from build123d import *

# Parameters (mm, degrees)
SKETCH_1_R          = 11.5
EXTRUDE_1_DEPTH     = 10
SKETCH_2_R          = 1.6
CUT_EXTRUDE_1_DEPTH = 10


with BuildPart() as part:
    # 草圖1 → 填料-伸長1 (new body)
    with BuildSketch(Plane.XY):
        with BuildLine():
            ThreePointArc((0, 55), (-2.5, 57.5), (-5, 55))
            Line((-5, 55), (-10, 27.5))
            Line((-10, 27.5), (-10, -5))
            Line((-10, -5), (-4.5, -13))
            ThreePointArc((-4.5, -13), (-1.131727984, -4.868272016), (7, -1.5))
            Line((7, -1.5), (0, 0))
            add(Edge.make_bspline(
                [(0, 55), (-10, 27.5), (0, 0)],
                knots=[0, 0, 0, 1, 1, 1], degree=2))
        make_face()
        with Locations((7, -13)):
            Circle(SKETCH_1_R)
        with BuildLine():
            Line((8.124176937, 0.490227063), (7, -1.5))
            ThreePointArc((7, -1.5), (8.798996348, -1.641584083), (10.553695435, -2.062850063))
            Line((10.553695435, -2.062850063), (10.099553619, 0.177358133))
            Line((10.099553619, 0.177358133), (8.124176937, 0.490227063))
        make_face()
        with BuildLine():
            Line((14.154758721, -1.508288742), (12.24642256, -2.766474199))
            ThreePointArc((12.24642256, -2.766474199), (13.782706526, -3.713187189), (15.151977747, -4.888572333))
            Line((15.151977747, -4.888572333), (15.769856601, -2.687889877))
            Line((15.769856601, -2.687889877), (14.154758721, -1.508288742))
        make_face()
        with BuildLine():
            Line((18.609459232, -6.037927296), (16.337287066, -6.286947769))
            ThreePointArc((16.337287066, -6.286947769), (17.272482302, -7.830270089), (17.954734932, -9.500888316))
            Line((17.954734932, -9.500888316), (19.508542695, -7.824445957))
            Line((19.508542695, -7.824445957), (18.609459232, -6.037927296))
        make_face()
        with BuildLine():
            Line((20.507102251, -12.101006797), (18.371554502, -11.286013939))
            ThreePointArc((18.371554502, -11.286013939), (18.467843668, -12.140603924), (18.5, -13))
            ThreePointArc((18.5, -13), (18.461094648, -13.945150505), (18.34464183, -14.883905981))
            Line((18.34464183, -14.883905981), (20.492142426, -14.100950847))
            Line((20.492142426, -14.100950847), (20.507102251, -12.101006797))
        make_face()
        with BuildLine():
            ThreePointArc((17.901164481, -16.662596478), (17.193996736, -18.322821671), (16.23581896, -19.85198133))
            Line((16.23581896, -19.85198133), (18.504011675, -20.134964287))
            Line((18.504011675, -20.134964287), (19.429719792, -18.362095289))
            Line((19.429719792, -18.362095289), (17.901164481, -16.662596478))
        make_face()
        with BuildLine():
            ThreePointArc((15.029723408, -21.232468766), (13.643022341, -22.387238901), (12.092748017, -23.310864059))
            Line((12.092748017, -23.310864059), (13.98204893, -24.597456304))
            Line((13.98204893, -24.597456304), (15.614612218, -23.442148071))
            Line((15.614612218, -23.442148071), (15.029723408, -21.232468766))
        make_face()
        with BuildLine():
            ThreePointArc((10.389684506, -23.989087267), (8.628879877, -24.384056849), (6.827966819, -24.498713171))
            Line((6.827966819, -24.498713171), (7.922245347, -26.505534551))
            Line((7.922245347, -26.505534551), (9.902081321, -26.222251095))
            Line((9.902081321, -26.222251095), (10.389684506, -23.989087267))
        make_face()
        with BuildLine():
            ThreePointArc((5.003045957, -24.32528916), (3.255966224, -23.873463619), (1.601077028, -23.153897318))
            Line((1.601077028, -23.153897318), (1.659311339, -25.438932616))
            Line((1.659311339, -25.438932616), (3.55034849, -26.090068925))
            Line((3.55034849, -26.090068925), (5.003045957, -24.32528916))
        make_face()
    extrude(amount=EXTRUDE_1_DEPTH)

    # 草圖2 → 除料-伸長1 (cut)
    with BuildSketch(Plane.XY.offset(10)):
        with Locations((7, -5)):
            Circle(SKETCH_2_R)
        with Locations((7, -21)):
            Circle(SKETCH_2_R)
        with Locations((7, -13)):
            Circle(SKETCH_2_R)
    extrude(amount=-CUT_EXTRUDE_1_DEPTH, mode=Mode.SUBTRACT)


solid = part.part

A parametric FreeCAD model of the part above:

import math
import FreeCAD as App
import Part
import Sketcher
Q = App.Units.Quantity

doc = App.newDocument("Part")
body = doc.addObject("PartDesign::Body", "Body")

sketch1 = body.newObject("Sketcher::SketchObject", "Sketch")
sketch1.AttachmentSupport = (doc.getObject("XY_Plane"), [""])
sketch1.MapMode = "FlatFace"
sketch1.addGeometry(Part.ArcOfCircle(Part.Circle(App.Vector(-2.5, 55, 0), App.Vector(0, 0, 1), 2.5), math.radians(0), math.radians(180)), False)
sketch1.addGeometry(Part.LineSegment(App.Vector(-5, 55, 0), App.Vector(-10, 27.5, 0)), False)
sketch1.addGeometry(Part.LineSegment(App.Vector(-10, 27.5, 0), App.Vector(-10, -5, 0)), False)
sketch1.addGeometry(Part.LineSegment(App.Vector(-10, -5, 0), App.Vector(-4.5, -13, 0)), False)
sketch1.addGeometry(Part.ArcOfCircle(Part.Circle(App.Vector(7, -13, 0), App.Vector(0, 0, 1), 11.5), math.radians(180), math.radians(242)), False)
sketch1.addGeometry(Part.LineSegment(App.Vector(1.601077, -23.153897, 0), App.Vector(1.659311, -25.438933, 0)), False)
sketch1.addGeometry(Part.LineSegment(App.Vector(1.659311, -25.438933, 0), App.Vector(3.550348, -26.090069, 0)), False)
sketch1.addGeometry(Part.LineSegment(App.Vector(3.550348, -26.090069, 0), App.Vector(5.003046, -24.325289, 0)), False)
sketch1.addGeometry(Part.ArcOfCircle(Part.Circle(App.Vector(7, -13, 0), App.Vector(0, 0, 1), 11.5), math.radians(-100), math.radians(-90.857143)), False)
sketch1.addGeometry(Part.LineSegment(App.Vector(6.827967, -24.498713, 0), App.Vector(7.922245, -26.505535, 0)), False)
sketch1.addGeometry(Part.LineSegment(App.Vector(7.922245, -26.505535, 0), App.Vector(9.902081, -26.222251, 0)), False)
sketch1.addGeometry(Part.LineSegment(App.Vector(9.902081, -26.222251, 0), App.Vector(10.389685, -23.989087, 0)), False)
sketch1.addGeometry(Part.ArcOfCircle(Part.Circle(App.Vector(7, -13, 0), App.Vector(0, 0, 1), 11.5), math.radians(-72.857143), math.radians(-63.714286)), False)
sketch1.addGeometry(Part.LineSegment(App.Vector(12.092748, -23.310864, 0), App.Vector(13.982049, -24.597456, 0)), False)
sketch1.addGeometry(Part.LineSegment(App.Vector(13.982049, -24.597456, 0), App.Vector(15.614612, -23.442148, 0)), False)
sketch1.addGeometry(Part.LineSegment(App.Vector(15.614612, -23.442148, 0), App.Vector(15.029723, -21.232469, 0)), False)
sketch1.addGeometry(Part.ArcOfCircle(Part.Circle(App.Vector(7, -13, 0), App.Vector(0, 0, 1), 11.5), math.radians(-45.714286), math.radians(-36.571429)), False)
sketch1.addGeometry(Part.LineSegment(App.Vector(16.235819, -19.851981, 0), App.Vector(18.504012, -20.134964, 0)), False)
sketch1.addGeometry(Part.LineSegment(App.Vector(18.504012, -20.134964, 0), App.Vector(19.42972, -18.362095, 0)), False)
sketch1.addGeometry(Part.LineSegment(App.Vector(19.42972, -18.362095, 0), App.Vector(17.901164, -16.662596, 0)), False)
sketch1.addGeometry(Part.ArcOfCircle(Part.Circle(App.Vector(7, -13, 0), App.Vector(0, 0, 1), 11.5), math.radians(-18.571429), math.radians(-9.428571)), False)
sketch1.addGeometry(Part.LineSegment(App.Vector(18.344642, -14.883906, 0), App.Vector(20.492142, -14.100951, 0)), False)
sketch1.addGeometry(Part.LineSegment(App.Vector(20.492142, -14.100951, 0), App.Vector(20.507102, -12.101007, 0)), False)
sketch1.addGeometry(Part.LineSegment(App.Vector(20.507102, -12.101007, 0), App.Vector(18.371555, -11.286014, 0)), False)
sketch1.addGeometry(Part.ArcOfCircle(Part.Circle(App.Vector(7, -13, 0), App.Vector(0, 0, 1), 11.5), math.radians(8.571429), math.radians(17.714286)), False)
sketch1.addGeometry(Part.LineSegment(App.Vector(17.954735, -9.500888, 0), App.Vector(19.508543, -7.824446, 0)), False)
sketch1.addGeometry(Part.LineSegment(App.Vector(19.508543, -7.824446, 0), App.Vector(18.609459, -6.037927, 0)), False)
sketch1.addGeometry(Part.LineSegment(App.Vector(18.609459, -6.037927, 0), App.Vector(16.337287, -6.286948, 0)), False)
sketch1.addGeometry(Part.ArcOfCircle(Part.Circle(App.Vector(7, -13, 0), App.Vector(0, 0, 1), 11.5), math.radians(35.714286), math.radians(44.857143)), False)
sketch1.addGeometry(Part.LineSegment(App.Vector(15.151978, -4.888572, 0), App.Vector(15.769857, -2.68789, 0)), False)
sketch1.addGeometry(Part.LineSegment(App.Vector(15.769857, -2.68789, 0), App.Vector(14.154759, -1.508289, 0)), False)
sketch1.addGeometry(Part.LineSegment(App.Vector(14.154759, -1.508289, 0), App.Vector(12.246423, -2.766474, 0)), False)
sketch1.addGeometry(Part.ArcOfCircle(Part.Circle(App.Vector(7, -13, 0), App.Vector(0, 0, 1), 11.5), math.radians(62.857143), math.radians(72)), False)
sketch1.addGeometry(Part.LineSegment(App.Vector(10.553695, -2.06285, 0), App.Vector(10.099554, 0.177358, 0)), False)
sketch1.addGeometry(Part.LineSegment(App.Vector(10.099554, 0.177358, 0), App.Vector(8.124177, 0.490227, 0)), False)
sketch1.addGeometry(Part.LineSegment(App.Vector(8.124177, 0.490227, 0), App.Vector(7, -1.5, 0)), False)
sketch1.addGeometry(Part.LineSegment(App.Vector(7, -1.5, 0), App.Vector(0, 0, 0)), False)
sketch1.addGeometry(Part.BSplineCurve([App.Vector(0, 55, 0), App.Vector(-10, 27.5, 0), App.Vector(0, 0, 0)], [3, 3], [0, 1], False, 2, [1, 1, 1], False), False)
sketch1.addConstraint(Sketcher.Constraint("Block", 37))
sketch1.addConstraint(Sketcher.Constraint("Coincident", 0, 2, 1, 1))
sketch1.addConstraint(Sketcher.Constraint("Coincident", 1, 2, 2, 1))
sketch1.addConstraint(Sketcher.Constraint("Coincident", 2, 2, 3, 1))
sketch1.addConstraint(Sketcher.Constraint("Coincident", 3, 2, 4, 1))
sketch1.addConstraint(Sketcher.Constraint("Coincident", 4, 2, 5, 1))
sketch1.addConstraint(Sketcher.Constraint("Coincident", 5, 2, 6, 1))
sketch1.addConstraint(Sketcher.Constraint("Coincident", 6, 2, 7, 1))
sketch1.addConstraint(Sketcher.Constraint("Coincident", 7, 2, 8, 1))
sketch1.addConstraint(Sketcher.Constraint("Coincident", 8, 2, 9, 1))
sketch1.addConstraint(Sketcher.Constraint("Coincident", 9, 2, 10, 1))
sketch1.addConstraint(Sketcher.Constraint("Coincident", 10, 2, 11, 1))
sketch1.addConstraint(Sketcher.Constraint("Coincident", 11, 2, 12, 1))
sketch1.addConstraint(Sketcher.Constraint("Coincident", 12, 2, 13, 1))
sketch1.addConstraint(Sketcher.Constraint("Coincident", 13, 2, 14, 1))
sketch1.addConstraint(Sketcher.Constraint("Coincident", 14, 2, 15, 1))
sketch1.addConstraint(Sketcher.Constraint("Coincident", 15, 2, 16, 1))
sketch1.addConstraint(Sketcher.Constraint("Coincident", 16, 2, 17, 1))
sketch1.addConstraint(Sketcher.Constraint("Coincident", 17, 2, 18, 1))
sketch1.addConstraint(Sketcher.Constraint("Coincident", 18, 2, 19, 1))
sketch1.addConstraint(Sketcher.Constraint("Coincident", 19, 2, 20, 1))
sketch1.addConstraint(Sketcher.Constraint("Coincident", 20, 2, 21, 1))
sketch1.addConstraint(Sketcher.Constraint("Coincident", 21, 2, 22, 1))
sketch1.addConstraint(Sketcher.Constraint("Coincident", 22, 2, 23, 1))
sketch1.addConstraint(Sketcher.Constraint("Coincident", 23, 2, 24, 1))
sketch1.addConstraint(Sketcher.Constraint("Coincident", 24, 2, 25, 1))
sketch1.addConstraint(Sketcher.Constraint("Coincident", 25, 2, 26, 1))
sketch1.addConstraint(Sketcher.Constraint("Coincident", 26, 2, 27, 1))
sketch1.addConstraint(Sketcher.Constraint("Coincident", 27, 2, 28, 1))
sketch1.addConstraint(Sketcher.Constraint("Coincident", 28, 2, 29, 1))
sketch1.addConstraint(Sketcher.Constraint("Coincident", 29, 2, 30, 1))
sketch1.addConstraint(Sketcher.Constraint("Coincident", 30, 2, 31, 1))
sketch1.addConstraint(Sketcher.Constraint("Coincident", 31, 2, 32, 1))
sketch1.addConstraint(Sketcher.Constraint("Coincident", 32, 2, 33, 1))
sketch1.addConstraint(Sketcher.Constraint("Coincident", 33, 2, 34, 1))
sketch1.addConstraint(Sketcher.Constraint("Coincident", 34, 2, 35, 1))
sketch1.addConstraint(Sketcher.Constraint("Coincident", 35, 2, 36, 1))
sketch1.addConstraint(Sketcher.Constraint("Coincident", 36, 2, 37, 2))
sketch1.addConstraint(Sketcher.Constraint("Coincident", 37, 1, 0, 1))
sketch1.addConstraint(Sketcher.Constraint("Vertical", 2))
sketch1.addConstraint(Sketcher.Constraint("Coincident", 8, 3, 4, 3))
sketch1.addConstraint(Sketcher.Constraint("Coincident", 12, 3, 4, 3))
sketch1.addConstraint(Sketcher.Constraint("Coincident", 16, 3, 4, 3))
sketch1.addConstraint(Sketcher.Constraint("Coincident", 20, 3, 4, 3))
sketch1.addConstraint(Sketcher.Constraint("Coincident", 24, 3, 4, 3))
sketch1.addConstraint(Sketcher.Constraint("Coincident", 28, 3, 4, 3))
sketch1.addConstraint(Sketcher.Constraint("Coincident", 32, 3, 4, 3))
sketch1.addConstraint(Sketcher.Constraint("Equal", 4, 8))
sketch1.addConstraint(Sketcher.Constraint("Equal", 8, 12))
sketch1.addConstraint(Sketcher.Constraint("Equal", 12, 16))
sketch1.addConstraint(Sketcher.Constraint("Equal", 16, 20))
sketch1.addConstraint(Sketcher.Constraint("Equal", 20, 24))
sketch1.addConstraint(Sketcher.Constraint("Equal", 24, 28))
sketch1.addConstraint(Sketcher.Constraint("Equal", 28, 32))
sketch1.addConstraint(Sketcher.Constraint("Horizontal", 32, 3, 3, 2))
sketch1.addConstraint(Sketcher.Constraint("Vertical", 32, 3, 35, 2))
sketch1.addConstraint(Sketcher.Constraint("Equal", 5, 7))
sketch1.addConstraint(Sketcher.Constraint("Equal", 7, 9))
sketch1.addConstraint(Sketcher.Constraint("Equal", 6, 10))
sketch1.addConstraint(Sketcher.Constraint("Equal", 9, 11))
sketch1.addConstraint(Sketcher.Constraint("Equal", 11, 13))
sketch1.addConstraint(Sketcher.Constraint("Equal", 10, 14))
sketch1.addConstraint(Sketcher.Constraint("Equal", 13, 15))
sketch1.addConstraint(Sketcher.Constraint("Equal", 15, 17))
sketch1.addConstraint(Sketcher.Constraint("Equal", 14, 18))
sketch1.addConstraint(Sketcher.Constraint("Equal", 17, 19))
sketch1.addConstraint(Sketcher.Constraint("Equal", 19, 21))
sketch1.addConstraint(Sketcher.Constraint("Equal", 18, 22))
sketch1.addConstraint(Sketcher.Constraint("Equal", 21, 23))
sketch1.addConstraint(Sketcher.Constraint("Equal", 23, 25))
sketch1.addConstraint(Sketcher.Constraint("Equal", 22, 26))
sketch1.addConstraint(Sketcher.Constraint("Equal", 25, 27))
sketch1.addConstraint(Sketcher.Constraint("Equal", 27, 29))
sketch1.addConstraint(Sketcher.Constraint("Equal", 26, 30))
sketch1.addConstraint(Sketcher.Constraint("Equal", 29, 31))
sketch1.addConstraint(Sketcher.Constraint("Equal", 31, 33))
sketch1.addConstraint(Sketcher.Constraint("Equal", 30, 34))
sketch1.addConstraint(Sketcher.Constraint("Equal", 33, 35))
sketch1.addConstraint(Sketcher.Constraint("Radius", 0, 2.5))
sketch1.addConstraint(Sketcher.Constraint("Radius", 4, 11.5))
sketch1.addConstraint(Sketcher.Constraint("Angle", 6, Q("-19 deg")))
sketch1.addConstraint(Sketcher.Constraint("Angle", 34, Q("171 deg")))
sketch1.addConstraint(Sketcher.Constraint("Distance", 6, 2.0))
sketch1.addConstraint(Sketcher.Constraint("DistanceY", 2, 2, 2, 1, 32.5))
sketch1.addConstraint(Sketcher.Constraint("DistanceY", -1, 1, 0, 3, 55.0))
sketch1.addConstraint(Sketcher.Constraint("DistanceX", -1, 1, 4, 3, 7.0))
sketch1.addConstraint(Sketcher.Constraint("DistanceY", 4, 3, -1, 1, 13.0))
sketch1.addConstraint(Sketcher.Constraint("DistanceY", -1, 1, 0, 2, 55.0))
sketch1.addConstraint(Sketcher.Constraint("DistanceX", 1, 2, -1, 1, 10.0))
sketch1.addConstraint(Sketcher.Constraint("DistanceY", 2, 2, -1, 1, 5.0))
sketch1.addConstraint(Sketcher.Constraint("DistanceY", 35, 2, -1, 1, 1.5))
sketch1.addConstraint(Sketcher.Constraint("DistanceY", 24, 2, 29, 2, 6.812998))
sketch1.addConstraint(Sketcher.Constraint("DistanceX", 7, 2, 9, 2, 2.919199))
sketch1.addConstraint(Sketcher.Constraint("DistanceY", 9, 2, 5, 2, 1.066602))
sketch1.addConstraint(Sketcher.Constraint("DistanceY", 7, 2, 11, 2, 0.336202))
sketch1.addConstraint(Sketcher.Constraint("DistanceX", 12, 2, 13, 2, 1.889301))
sketch1.addConstraint(Sketcher.Constraint("DistanceX", 14, 2, 17, 2, 2.889399))
sketch1.addConstraint(Sketcher.Constraint("DistanceY", 12, 2, 17, 2, 3.1759))
sketch1.addConstraint(Sketcher.Constraint("DistanceX", 16, 2, 18, 2, 3.193901))
sketch1.addConstraint(Sketcher.Constraint("DistanceY", 18, 2, 19, 2, 1.699499))
sketch1.addConstraint(Sketcher.Constraint("DistanceX", 20, 2, 21, 2, 2.147501))
sketch1.addConstraint(Sketcher.Constraint("DistanceY", 20, 2, 22, 2, 2.782899))
sketch1.addConstraint(Sketcher.Constraint("DistanceX", 25, 2, 21, 2, 0.9836))
sketch1.addConstraint(Sketcher.Constraint("DistanceY", 25, 2, 27, 2, 1.537498))
sketch1.addConstraint(Sketcher.Constraint("DistanceY", 29, 2, 30, 2, 1.179601))
sketch1.addConstraint(Sketcher.Constraint("DistanceX", 30, 2, 26, 2, 4.454701))
sketch1.addConstraint(Sketcher.Constraint("DistanceY", 28, 2, 31, 2, 2.122098))
sketch1.addConstraint(Sketcher.Constraint("DistanceY", 31, 2, 34, 2, 3.256701))
sketch1.addConstraint(Sketcher.Constraint("DistanceX", -1, 1, 5, 2, 1.659311))
sketch1.addConstraint(Sketcher.Constraint("DistanceY", 6, 2, -1, 1, 26.090069))
sketch1.addConstraint(Sketcher.Constraint("DistanceX", -1, 1, 10, 2, 9.902081))
sketch1.addConstraint(Sketcher.Constraint("DistanceX", -1, 1, 12, 2, 12.092748))
sketch1.addConstraint(Sketcher.Constraint("DistanceX", -1, 1, 20, 2, 18.344642))
pad1 = body.newObject("PartDesign::Pad", "Pad")
pad1.Profile = sketch1
pad1.Length = 10

sketch2 = body.newObject("Sketcher::SketchObject", "Sketch001")
sketch2.AttachmentSupport = (doc.getObject("XY_Plane"), [""])
sketch2.MapMode = "FlatFace"
sketch2.AttachmentOffset = App.Placement(App.Vector(0, 0, 10), App.Rotation())
sketch2.addGeometry(Part.Circle(App.Vector(7, -5, 0), App.Vector(0, 0, 1), 1.6), False)
sketch2.addGeometry(Part.Circle(App.Vector(7, -21, 0), App.Vector(0, 0, 1), 1.6), False)
sketch2.addGeometry(Part.Circle(App.Vector(7, -13, 0), App.Vector(0, 0, 1), 1.6), False)
sketch2.addConstraint(Sketcher.Constraint("Equal", 0, 1))
sketch2.addConstraint(Sketcher.Constraint("Equal", 1, 2))
sketch2.addConstraint(Sketcher.Constraint("Vertical", 0, 3, 1, 3))
sketch2.addConstraint(Sketcher.Constraint("Vertical", 1, 3, 2, 3))
sketch2.addConstraint(Sketcher.Constraint("Diameter", 0, 3.2))
sketch2.addConstraint(Sketcher.Constraint("DistanceX", -1, 1, 0, 3, 7.0))
sketch2.addConstraint(Sketcher.Constraint("DistanceY", 0, 3, -1, 1, 5.0))
sketch2.addConstraint(Sketcher.Constraint("DistanceY", 1, 3, -1, 1, 21.0))
sketch2.addConstraint(Sketcher.Constraint("DistanceY", 2, 3, -1, 1, 13.0))
pocket1 = body.newObject("PartDesign::Pocket", "Pocket")
pocket1.Profile = sketch2
pocket1.Length = 10

doc.recompute()
